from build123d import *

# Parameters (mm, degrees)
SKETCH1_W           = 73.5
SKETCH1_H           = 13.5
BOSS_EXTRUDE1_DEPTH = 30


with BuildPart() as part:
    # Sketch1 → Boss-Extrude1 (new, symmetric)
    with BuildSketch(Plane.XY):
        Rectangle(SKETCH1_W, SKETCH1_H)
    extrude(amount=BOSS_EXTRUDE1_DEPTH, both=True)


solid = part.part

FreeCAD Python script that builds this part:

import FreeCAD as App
import Part
import Sketcher

V = App.Vector

doc = App.newDocument("Part")
body = doc.addObject("PartDesign::Body", "Body")

sketch1 = doc.addObject("Sketcher::SketchObject", "Sketch")
body.addObject(sketch1)
sketch1.AttachmentSupport = (doc.XY_Plane, [""])
sketch1.MapMode = "FlatFace"
sketch1.addGeometry(Part.LineSegment(V(-37, 7, 0), V(-37, -7, 0)), False)
sketch1.addGeometry(Part.LineSegment(V(-37, -7, 0), V(37, -7, 0)), False)
sketch1.addGeometry(Part.LineSegment(V(37, -7, 0), V(37, 7, 0)), False)
sketch1.addGeometry(Part.LineSegment(V(37, 7, 0), V(-37, 7, 0)), False)
sketch1.addConstraint(Sketcher.Constraint("Coincident", 0, 2, 1, 1))
sketch1.addConstraint(Sketcher.Constraint("Coincident", 1, 2, 2, 1))
sketch1.addConstraint(Sketcher.Constraint("Coincident", 2, 2, 3, 1))
sketch1.addConstraint(Sketcher.Constraint("Coincident", 3, 2, 0, 1))
sketch1.addConstraint(Sketcher.Constraint("Vertical", 0))
sketch1.addConstraint(Sketcher.Constraint("Horizontal", 1))
sketch1.addConstraint(Sketcher.Constraint("Vertical", 2))
sketch1.addConstraint(Sketcher.Constraint("Horizontal", 3))
sketch1.addConstraint(Sketcher.Constraint("Symmetric", 0, 2, 2, 2, -1, 1))
sketch1.addConstraint(Sketcher.Constraint("DistanceX", 1, 1, 1, 2, 73.5))
sketch1.addConstraint(Sketcher.Constraint("DistanceY", 0, 2, 0, 1, 13.5))
pad1 = doc.addObject("PartDesign::Pad", "Pad")
body.addObject(pad1)
pad1.Profile = sketch1
pad1.Length = 60
pad1.Midplane = True

doc.recompute()
